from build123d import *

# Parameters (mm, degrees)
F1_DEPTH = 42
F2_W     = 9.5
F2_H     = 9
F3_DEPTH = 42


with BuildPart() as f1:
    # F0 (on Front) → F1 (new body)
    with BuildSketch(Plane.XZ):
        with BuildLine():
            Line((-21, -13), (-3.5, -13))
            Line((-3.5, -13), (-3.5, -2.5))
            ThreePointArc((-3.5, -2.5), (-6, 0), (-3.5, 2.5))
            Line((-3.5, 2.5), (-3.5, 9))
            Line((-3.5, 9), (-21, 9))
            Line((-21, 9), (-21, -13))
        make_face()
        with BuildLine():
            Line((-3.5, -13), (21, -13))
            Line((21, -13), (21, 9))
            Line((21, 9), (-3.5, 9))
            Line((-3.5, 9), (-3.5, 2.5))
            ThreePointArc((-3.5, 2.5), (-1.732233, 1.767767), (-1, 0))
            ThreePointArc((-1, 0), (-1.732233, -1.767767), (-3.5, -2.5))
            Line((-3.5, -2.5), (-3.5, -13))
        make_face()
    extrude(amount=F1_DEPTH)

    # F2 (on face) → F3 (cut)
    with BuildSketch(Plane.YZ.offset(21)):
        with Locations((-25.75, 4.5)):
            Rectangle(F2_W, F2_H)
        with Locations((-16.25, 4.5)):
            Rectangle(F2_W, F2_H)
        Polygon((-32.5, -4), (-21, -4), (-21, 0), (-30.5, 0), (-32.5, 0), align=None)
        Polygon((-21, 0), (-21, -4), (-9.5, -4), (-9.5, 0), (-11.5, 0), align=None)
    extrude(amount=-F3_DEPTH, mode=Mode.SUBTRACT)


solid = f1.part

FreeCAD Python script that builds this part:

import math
import FreeCAD as App
import Part
import Sketcher
from FreeCAD import Vector
Q = App.Units.Quantity


def add_polygon(sketch, points):
    """Adds a closed chain of lines whose ends are joined by coincident constraints."""
    first, n = sketch.GeometryCount, len(points)
    for a, b in zip(points, points[1:] + points[:1]):
        sketch.addGeometry(Part.LineSegment(App.Vector(*a, 0), App.Vector(*b, 0)), False)
    for i in range(n):
        sketch.addConstraint(Sketcher.Constraint("Coincident", first + i, 2, first + (i + 1) % n, 1))

doc = App.newDocument("Part")
body = doc.addObject("PartDesign::Body", "Body")

# Sketch on XZ plane
sketch1 = doc.addObject("Sketcher::SketchObject", "Sketch")
body.addObject(sketch1)
sketch1.AttachmentSupport = (doc.XZ_Plane, [""])
sketch1.MapMode = "FlatFace"
add_polygon(sketch1, [(-21, -13), (21, -13), (21, 9), (-21, 9)])  # lines 0-3
sketch1.addGeometry(Part.ArcOfCircle(Part.Circle(Vector(-3.5, 0, 0), Vector(0, 0, 1), 2.5), math.radians(90), math.radians(270)), False)  # 4
sketch1.addGeometry(Part.ArcOfCircle(Part.Circle(Vector(-3.5, 0, 0), Vector(0, 0, 1), 2.5), math.radians(0), math.radians(90)), False)  # 5
sketch1.addGeometry(Part.ArcOfCircle(Part.Circle(Vector(-3.5, 0, 0), Vector(0, 0, 1), 2.5), math.radians(-90), math.radians(0)), False)  # 6
sketch1.addConstraint([
    Sketcher.Constraint("Tangent", 4, 1, 5, 2),
    Sketcher.Constraint("Tangent", 5, 1, 6, 2),
    Sketcher.Constraint("Tangent", 6, 1, 4, 2),
    Sketcher.Constraint("Horizontal", 0),
    Sketcher.Constraint("Vertical", 1),
    Sketcher.Constraint("Horizontal", 2),
    Sketcher.Constraint("Vertical", 3),
    Sketcher.Constraint("Symmetric", 4, 1, 6, 1, -1),
    Sketcher.Constraint("PointOnObject", 5, 1, -1),
    Sketcher.Constraint("Vertical", 6, 3, 4, 1),
    Sketcher.Constraint("Radius", 4, Q("2.5 mm")),
    Sketcher.Constraint("DistanceX", 0, 1, 0, 2, Q("42 mm")),
    Sketcher.Constraint("DistanceY", 1, 1, 1, 2, Q("22 mm")),
    Sketcher.Constraint("DistanceX", -1, 1, 0, 2, Q("21 mm")),
    Sketcher.Constraint("DistanceY", 0, 2, -1, 1, Q("13 mm")),
    Sketcher.Constraint("DistanceX", 5, 1, -1, 1, Q("1 mm")),
])
pad1 = doc.addObject("PartDesign::Pad", "Pad")
body.addObject(pad1)
pad1.Profile = sketch1
pad1.Length = 42

# Sketch on YZ plane
sketch2 = doc.addObject("Sketcher::SketchObject", "Sketch001")
body.addObject(sketch2)
sketch2.AttachmentSupport = (doc.YZ_Plane, [""])
sketch2.MapMode = "FlatFace"
sketch2.AttachmentOffset = App.Placement(Vector(0, 0, 21), App.Rotation())
add_polygon(sketch2, [(-30.5, 9), (-30.5, 0), (-32.5, 0), (-32.5, -4), (-9.5, -4), (-9.5, 0), (-11.5, 0), (-11.5, 9)])  # lines 0-7
sketch2.addConstraint([
    Sketcher.Constraint("Vertical", 0),
    Sketcher.Constraint("Horizontal", 1),
    Sketcher.Constraint("Vertical", 2),
    Sketcher.Constraint("Horizontal", 3),
    Sketcher.Constraint("Vertical", 4),
    Sketcher.Constraint("Horizontal", 5),
    Sketcher.Constraint("Vertical", 6),
    Sketcher.Constraint("Horizontal", 7),
    Sketcher.Constraint("PointOnObject", 0, 2, -1),
    Sketcher.Constraint("PointOnObject", 4, 2, -1),
    Sketcher.Constraint("Equal", 1, 5),
    Sketcher.Constraint("DistanceX", 1, 2, 1, 1, Q("2 mm")),
    Sketcher.Constraint("DistanceX", 3, 1, 3, 2, Q("23 mm")),
    Sketcher.Constraint("DistanceY", 0, 2, 0, 1, Q("9 mm")),
    Sketcher.Constraint("DistanceY", 2, 2, 2, 1, Q("4 mm")),
    Sketcher.Constraint("DistanceX", 0, 2, -1, 1, Q("30.5 mm")),
])
pocket1 = doc.addObject("PartDesign::Pocket", "Pocket")
body.addObject(pocket1)
pocket1.Profile = sketch2
pocket1.Length = 42

doc.recompute()
